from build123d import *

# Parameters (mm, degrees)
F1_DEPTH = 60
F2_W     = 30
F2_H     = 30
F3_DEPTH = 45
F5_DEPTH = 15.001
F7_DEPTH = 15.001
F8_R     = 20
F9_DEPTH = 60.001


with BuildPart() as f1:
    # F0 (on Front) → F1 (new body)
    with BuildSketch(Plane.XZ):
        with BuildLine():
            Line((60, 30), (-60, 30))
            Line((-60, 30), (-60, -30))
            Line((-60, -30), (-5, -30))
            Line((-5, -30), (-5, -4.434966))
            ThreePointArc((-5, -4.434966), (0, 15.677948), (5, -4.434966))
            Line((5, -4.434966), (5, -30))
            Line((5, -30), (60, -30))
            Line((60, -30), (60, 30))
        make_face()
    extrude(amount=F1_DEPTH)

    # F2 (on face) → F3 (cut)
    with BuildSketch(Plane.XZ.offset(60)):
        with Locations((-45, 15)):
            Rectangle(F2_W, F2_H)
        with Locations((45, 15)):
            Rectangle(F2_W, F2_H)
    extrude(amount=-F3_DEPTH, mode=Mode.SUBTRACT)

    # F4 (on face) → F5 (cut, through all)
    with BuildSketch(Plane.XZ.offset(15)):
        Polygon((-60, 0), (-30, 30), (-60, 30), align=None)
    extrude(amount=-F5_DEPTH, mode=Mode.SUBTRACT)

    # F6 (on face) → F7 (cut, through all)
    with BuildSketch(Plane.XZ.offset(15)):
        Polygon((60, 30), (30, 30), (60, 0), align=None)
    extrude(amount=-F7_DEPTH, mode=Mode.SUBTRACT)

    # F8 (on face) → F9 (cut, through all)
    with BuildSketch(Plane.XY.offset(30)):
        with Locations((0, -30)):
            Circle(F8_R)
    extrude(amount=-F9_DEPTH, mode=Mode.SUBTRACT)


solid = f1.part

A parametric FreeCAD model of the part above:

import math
import FreeCAD as App
import Part
import Sketcher
from FreeCAD import Vector


def add_polygon(sketch, points):
    """Adds a closed chain of lines whose ends are joined by coincident constraints."""
    first, n = sketch.GeometryCount, len(points)
    for a, b in zip(points, points[1:] + points[:1]):
        sketch.addGeometry(Part.LineSegment(App.Vector(*a, 0), App.Vector(*b, 0)), False)
    for i in range(n):
        sketch.addConstraint(Sketcher.Constraint("Coincident", first + i, 2, first + (i + 1) % n, 1))

doc = App.newDocument("Part")
body = doc.addObject("PartDesign::Body", "Body")

sketch1 = body.newObject("Sketcher::SketchObject", "Sketch")
sketch1.AttachmentSupport = (doc.getObject("XZ_Plane"), [""])
sketch1.MapMode = "FlatFace"
sketch1.addGeometry(Part.LineSegment(Vector(60, 30, 0), Vector(-60, 30, 0)), False)
sketch1.addGeometry(Part.LineSegment(Vector(-60, 30, 0), Vector(-60, -30, 0)), False)
sketch1.addGeometry(Part.LineSegment(Vector(-60, -30, 0), Vector(-5, -30, 0)), False)
sketch1.addGeometry(Part.LineSegment(Vector(-5, -30, 0), Vector(-5, -4, 0)), False)
sketch1.addGeometry(Part.ArcOfCircle(Part.Circle(Vector(0, 5, 0), Vector(0, 0, 1), 11), math.radians(-62), math.radians(242)), False)
sketch1.addGeometry(Part.LineSegment(Vector(5, -4, 0), Vector(5, -30, 0)), False)
sketch1.addGeometry(Part.LineSegment(Vector(5, -30, 0), Vector(60, -30, 0)), False)
sketch1.addGeometry(Part.LineSegment(Vector(60, -30, 0), Vector(60, 30, 0)), False)
sketch1.addConstraint(Sketcher.Constraint("Coincident", 0, 2, 1, 1))
sketch1.addConstraint(Sketcher.Constraint("Coincident", 1, 2, 2, 1))
sketch1.addConstraint(Sketcher.Constraint("Coincident", 2, 2, 3, 1))
sketch1.addConstraint(Sketcher.Constraint("Coincident", 3, 2, 4, 2))
sketch1.addConstraint(Sketcher.Constraint("Coincident", 4, 1, 5, 1))
sketch1.addConstraint(Sketcher.Constraint("Coincident", 5, 2, 6, 1))
sketch1.addConstraint(Sketcher.Constraint("Coincident", 6, 2, 7, 1))
sketch1.addConstraint(Sketcher.Constraint("Coincident", 7, 2, 0, 1))
sketch1.addConstraint(Sketcher.Constraint("Horizontal", 0))
sketch1.addConstraint(Sketcher.Constraint("Vertical", 1))
sketch1.addConstraint(Sketcher.Constraint("Horizontal", 2))
sketch1.addConstraint(Sketcher.Constraint("Vertical", 3))
sketch1.addConstraint(Sketcher.Constraint("Vertical", 5))
sketch1.addConstraint(Sketcher.Constraint("Horizontal", 6))
sketch1.addConstraint(Sketcher.Constraint("Vertical", 7))
sketch1.addConstraint(Sketcher.Constraint("Symmetric", 0, 2, 6, 2, -1, 1))
sketch1.addConstraint(Sketcher.Constraint("Symmetric", 3, 2, 4, 1, -2))
sketch1.addConstraint(Sketcher.Constraint("Horizontal", 2, 2, 5, 2))
sketch1.addConstraint(Sketcher.Constraint("DistanceX", 0, 2, 0, 1, 120.0))
sketch1.addConstraint(Sketcher.Constraint("DistanceX", 2, 1, 2, 2, 55.0))
sketch1.addConstraint(Sketcher.Constraint("DistanceY", 1, 2, 1, 1, 60.0))
sketch1.addConstraint(Sketcher.Constraint("DistanceY", -1, 1, 4, 3, 5.0))
sketch1.addConstraint(Sketcher.Constraint("Radius", 4, 10.677948))
pad1 = body.newObject("PartDesign::Pad", "Pad")
pad1.Profile = sketch1
pad1.Length = 60

sketch2 = body.newObject("Sketcher::SketchObject", "Sketch001")
sketch2.AttachmentSupport = (doc.getObject("XZ_Plane"), [""])
sketch2.MapMode = "FlatFace"
sketch2.AttachmentOffset = App.Placement(Vector(0, 0, 60), App.Rotation())
add_polygon(sketch2, [(-60, 30), (-60, 0), (-30, 0), (-30, 30)])
add_polygon(sketch2, [(30, 30), (30, 0), (60, 0), (60, 30)])
sketch2.addConstraint(Sketcher.Constraint("Vertical", 0))
sketch2.addConstraint(Sketcher.Constraint("Horizontal", 1))
sketch2.addConstraint(Sketcher.Constraint("Vertical", 2))
sketch2.addConstraint(Sketcher.Constraint("Horizontal", 3))
sketch2.addConstraint(Sketcher.Constraint("Vertical", 4))
sketch2.addConstraint(Sketcher.Constraint("Horizontal", 5))
sketch2.addConstraint(Sketcher.Constraint("Vertical", 6))
sketch2.addConstraint(Sketcher.Constraint("Horizontal", 7))
sketch2.addConstraint(Sketcher.Constraint("Symmetric", 1, 2, 4, 2, -1, 1))
sketch2.addConstraint(Sketcher.Constraint("Symmetric", 0, 2, 5, 2, -2))
sketch2.addConstraint(Sketcher.Constraint("Horizontal", 3, 2, 6, 2))
sketch2.addConstraint(Sketcher.Constraint("Equal", 7, 0))
sketch2.addConstraint(Sketcher.Constraint("DistanceX", 1, 1, 1, 2, 30.0))
sketch2.addConstraint(Sketcher.Constraint("DistanceX", 0, 2, -1, 1, 60.0))
pocket1 = body.newObject("PartDesign::Pocket", "Pocket")
pocket1.Profile = sketch2
pocket1.Length = 45

sketch3 = body.newObject("Sketcher::SketchObject", "Sketch002")
sketch3.AttachmentSupport = (doc.getObject("XZ_Plane"), [""])
sketch3.MapMode = "FlatFace"
sketch3.AttachmentOffset = App.Placement(Vector(0, 0, 15), App.Rotation())
add_polygon(sketch3, [(-60, 0), (-30, 30), (-60, 30)])
sketch3.addConstraint(Sketcher.Constraint("Horizontal", 1))
sketch3.addConstraint(Sketcher.Constraint("Vertical", 2))
sketch3.addConstraint(Sketcher.Constraint("PointOnObject", 2, 2, -1))
sketch3.addConstraint(Sketcher.Constraint("Equal", 1, 2))
sketch3.addConstraint(Sketcher.Constraint("DistanceX", 1, 2, 1, 1, 30.0))
sketch3.addConstraint(Sketcher.Constraint("DistanceX", 0, 2, -1, 1, 30.0))
pocket2 = body.newObject("PartDesign::Pocket", "Pocket001")
pocket2.Profile = sketch3
pocket2.Type = "ThroughAll"

sketch4 = body.newObject("Sketcher::SketchObject", "Sketch003")
sketch4.AttachmentSupport = (doc.getObject("XZ_Plane"), [""])
sketch4.MapMode = "FlatFace"
sketch4.AttachmentOffset = App.Placement(Vector(0, 0, 15), App.Rotation())
add_polygon(sketch4, [(60, 30), (30, 30), (60, 0)])
sketch4.addConstraint(Sketcher.Constraint("Horizontal", 0))
sketch4.addConstraint(Sketcher.Constraint("Vertical", 2))
sketch4.addConstraint(Sketcher.Constraint("PointOnObject", 1, 2, -1))
sketch4.addConstraint(Sketcher.Constraint("Equal", 0, 2))
sketch4.addConstraint(Sketcher.Constraint("DistanceX", 0, 2, 0, 1, 30.0))
sketch4.addConstraint(Sketcher.Constraint("DistanceX", -1, 1, 0, 2, 30.0))
pocket3 = body.newObject("PartDesign::Pocket", "Pocket002")
pocket3.Profile = sketch4
pocket3.Type = "ThroughAll"

sketch5 = body.newObject("Sketcher::SketchObject", "Sketch004")
sketch5.AttachmentSupport = (doc.getObject("XY_Plane"), [""])
sketch5.MapMode = "FlatFace"
sketch5.AttachmentOffset = App.Placement(Vector(0, 0, 30), App.Rotation())
sketch5.addGeometry(Part.Circle(Vector(0, -30, 0), Vector(0, 0, 1), 20), False)
sketch5.addConstraint(Sketcher.Constraint("PointOnObject", 0, 3, -2))
sketch5.addConstraint(Sketcher.Constraint("Diameter", 0, 40.0))
sketch5.addConstraint(Sketcher.Constraint("DistanceY", 0, 3, -1, 1, 30.0))
pocket4 = body.newObject("PartDesign::Pocket", "Pocket003")
pocket4.Profile = sketch5
pocket4.Type = "ThroughAll"

doc.recompute()
